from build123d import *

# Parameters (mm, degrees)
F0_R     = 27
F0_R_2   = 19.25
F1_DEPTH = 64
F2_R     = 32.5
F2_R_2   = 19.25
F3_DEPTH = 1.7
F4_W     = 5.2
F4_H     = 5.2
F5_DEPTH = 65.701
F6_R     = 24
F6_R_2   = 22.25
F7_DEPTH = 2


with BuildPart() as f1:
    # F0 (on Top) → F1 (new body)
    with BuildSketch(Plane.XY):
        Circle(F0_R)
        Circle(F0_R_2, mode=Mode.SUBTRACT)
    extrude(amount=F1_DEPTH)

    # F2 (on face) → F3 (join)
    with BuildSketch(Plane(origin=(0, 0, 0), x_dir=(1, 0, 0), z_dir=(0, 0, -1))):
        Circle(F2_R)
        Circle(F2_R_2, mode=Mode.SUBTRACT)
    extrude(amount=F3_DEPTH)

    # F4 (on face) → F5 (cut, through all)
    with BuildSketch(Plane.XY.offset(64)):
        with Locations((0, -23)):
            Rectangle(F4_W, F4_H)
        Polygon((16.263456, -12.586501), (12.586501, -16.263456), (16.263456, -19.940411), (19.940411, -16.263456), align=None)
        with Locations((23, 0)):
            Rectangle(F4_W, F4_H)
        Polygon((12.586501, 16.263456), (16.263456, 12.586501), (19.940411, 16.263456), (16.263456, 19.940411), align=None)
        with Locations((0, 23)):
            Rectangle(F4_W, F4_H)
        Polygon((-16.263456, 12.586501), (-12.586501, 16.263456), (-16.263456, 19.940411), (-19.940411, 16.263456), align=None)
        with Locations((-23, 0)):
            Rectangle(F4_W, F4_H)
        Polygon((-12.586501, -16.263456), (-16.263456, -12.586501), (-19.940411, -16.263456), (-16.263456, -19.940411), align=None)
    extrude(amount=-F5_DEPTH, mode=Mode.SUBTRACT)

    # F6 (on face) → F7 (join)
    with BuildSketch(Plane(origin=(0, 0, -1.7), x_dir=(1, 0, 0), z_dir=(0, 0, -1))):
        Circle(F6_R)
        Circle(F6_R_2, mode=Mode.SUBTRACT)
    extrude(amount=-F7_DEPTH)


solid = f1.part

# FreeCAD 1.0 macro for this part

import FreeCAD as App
import Part
import Sketcher
from FreeCAD import Vector
Q = App.Units.Quantity


def add_polygon(sketch, points):
    """Adds a closed chain of lines whose ends are joined by coincident constraints."""
    first, n = sketch.GeometryCount, len(points)
    for a, b in zip(points, points[1:] + points[:1]):
        sketch.addGeometry(Part.LineSegment(App.Vector(*a, 0), App.Vector(*b, 0)), False)
    for i in range(n):
        sketch.addConstraint(Sketcher.Constraint("Coincident", first + i, 2, first + (i + 1) % n, 1))

doc = App.newDocument("Part")
params = doc.addObject("Spreadsheet::Sheet", "Params")
for row, (alias, value) in enumerate([
    ("sketch1_diameter", "54 mm"),
    ("sketch1_diameter2", "38.5 mm"),
    ("pad1_length", "64 mm"),
    ("sketch2_diameter", "65 mm"),
    ("sketch2_diameter2", "38.5 mm"),
    ("pad2_length", "1.7 mm"),
    ("sketch3_width", "5.2 mm"),
    ("sketch3_length", "5.2 mm"),
    ("sketch4_diameter", "48 mm"),
    ("sketch4_diameter2", "44.5 mm"),
    ("pad3_length", "2 mm"),
], start=1):
    params.set(f"A{row}", alias)
    params.set(f"B{row}", "=" + value)
    params.setAlias(f"B{row}", alias)

body = doc.addObject("PartDesign::Body", "Body")

# Sketch on XY plane
sketch1 = doc.addObject("Sketcher::SketchObject", "Sketch")
body.addObject(sketch1)
sketch1.AttachmentSupport = (doc.XY_Plane, [""])
sketch1.MapMode = "FlatFace"
sketch1.addGeometry([
    Part.Circle(Vector(0, 0, 0), Vector(0, 0, 1), 27),
    Part.Circle(Vector(0, 0, 0), Vector(0, 0, 1), 19.25),
], False)
sketch1.addConstraint([
    Sketcher.Constraint("Coincident", 0, 3, -1, 1),
    Sketcher.Constraint("Coincident", 1, 3, -1, 1),
    Sketcher.Constraint("Diameter", 0, Q("54 mm")),
    Sketcher.Constraint("Diameter", 1, Q("38.5 mm")),
])
sketch1.setExpression("Constraints[2]", "Params.sketch1_diameter")
sketch1.setExpression("Constraints[3]", "Params.sketch1_diameter2")
pad1 = doc.addObject("PartDesign::Pad", "Pad")
body.addObject(pad1)
pad1.Profile = sketch1
pad1.setExpression("Length", "Params.pad1_length")

# Sketch on XY plane
sketch2 = doc.addObject("Sketcher::SketchObject", "Sketch001")
body.addObject(sketch2)
sketch2.AttachmentSupport = (doc.XY_Plane, [""])
sketch2.MapMode = "FlatFace"
sketch2.addGeometry([
    Part.Circle(Vector(0, 0, 0), Vector(0, 0, 1), 32.5),
    Part.Circle(Vector(0, 0, 0), Vector(0, 0, 1), 19.25),
], False)
sketch2.addConstraint([
    Sketcher.Constraint("Coincident", 0, 3, -1, 1),
    Sketcher.Constraint("Coincident", 1, 3, -1, 1),
    Sketcher.Constraint("Diameter", 0, Q("65 mm")),
    Sketcher.Constraint("Diameter", 1, Q("38.5 mm")),
])
sketch2.setExpression("Constraints[2]", "Params.sketch2_diameter")
sketch2.setExpression("Constraints[3]", "Params.sketch2_diameter2")
pad2 = doc.addObject("PartDesign::Pad", "Pad001")
body.addObject(pad2)
pad2.Profile = sketch2
pad2.setExpression("Length", "Params.pad2_length")
pad2.Reversed = True

# Sketch on XY plane
sketch3 = doc.addObject("Sketcher::SketchObject", "Sketch002")
body.addObject(sketch3)
sketch3.AttachmentSupport = (doc.XY_Plane, [""])
sketch3.MapMode = "FlatFace"
sketch3.AttachmentOffset = App.Placement(Vector(0, 0, 64), App.Rotation())
add_polygon(sketch3, [(-2.6, -20.4), (-2.6, -25.6), (2.6, -25.6), (2.6, -20.4)])  # lines 0-3
add_polygon(sketch3, [(16.263456, -12.586501), (12.586501, -16.263456), (16.263456, -19.940411), (19.940411, -16.263456)])  # lines 4-7
add_polygon(sketch3, [(20.4, 2.6), (20.4, -2.6), (25.6, -2.6), (25.6, 2.6)])  # lines 8-11
add_polygon(sketch3, [(12.586501, 16.263456), (16.263456, 12.586501), (19.940411, 16.263456), (16.263456, 19.940411)])  # lines 12-15
add_polygon(sketch3, [(-2.6, 25.6), (-2.6, 20.4), (2.6, 20.4), (2.6, 25.6)])  # lines 16-19
add_polygon(sketch3, [(-16.263456, 12.586501), (-12.586501, 16.263456), (-16.263456, 19.940411), (-19.940411, 16.263456)])  # lines 20-23
add_polygon(sketch3, [(-25.6, 2.6), (-25.6, -2.6), (-20.4, -2.6), (-20.4, 2.6)])  # lines 24-27
add_polygon(sketch3, [(-12.586501, -16.263456), (-16.263456, -12.586501), (-19.940411, -16.263456), (-16.263456, -19.940411)])  # lines 28-31
sketch3.addConstraint([
    Sketcher.Constraint("Vertical", 0),
    Sketcher.Constraint("Horizontal", 1),
    Sketcher.Constraint("Vertical", 2),
    Sketcher.Constraint("Horizontal", 3),
    Sketcher.Constraint("Vertical", 8),
    Sketcher.Constraint("Horizontal", 9),
    Sketcher.Constraint("Vertical", 10),
    Sketcher.Constraint("Horizontal", 11),
    Sketcher.Constraint("Vertical", 16),
    Sketcher.Constraint("Horizontal", 17),
    Sketcher.Constraint("Vertical", 18),
    Sketcher.Constraint("Horizontal", 19),
    Sketcher.Constraint("Vertical", 24),
    Sketcher.Constraint("Horizontal", 25),
    Sketcher.Constraint("Vertical", 26),
    Sketcher.Constraint("Horizontal", 27),
    Sketcher.Constraint("Symmetric", 2, 2, 16, 2, -1, 1),
    Sketcher.Constraint("Symmetric", 0, 2, 18, 2, -1, 1),
    Sketcher.Constraint("Symmetric", 4, 2, 20, 2, -1, 1),
    Sketcher.Constraint("Symmetric", 5, 2, 21, 2, -1, 1),
    Sketcher.Constraint("Symmetric", 6, 2, 22, 2, -1, 1),
    Sketcher.Constraint("Symmetric", 7, 2, 23, 2, -1, 1),
    Sketcher.Constraint("Symmetric", 10, 2, 24, 2, -1, 1),
    Sketcher.Constraint("Symmetric", 8, 2, 26, 2, -1, 1),
    Sketcher.Constraint("Symmetric", 12, 2, 28, 2, -1, 1),
    Sketcher.Constraint("Symmetric", 13, 2, 29, 2, -1, 1),
    Sketcher.Constraint("Symmetric", 14, 2, 30, 2, -1, 1),
    Sketcher.Constraint("Symmetric", 15, 2, 31, 2, -1, 1),
    Sketcher.Constraint("Symmetric", 15, 2, 20, 2, -2),
    Sketcher.Constraint("Symmetric", 14, 2, 21, 2, -2),
    Sketcher.Constraint("Symmetric", 13, 2, 22, 2, -2),
    Sketcher.Constraint("Symmetric", 12, 2, 23, 2, -2),
    Sketcher.Constraint("Perpendicular", 4, 5),
    Sketcher.Constraint("Perpendicular", 5, 6),
    Sketcher.Constraint("Perpendicular", 6, 7),
    Sketcher.Constraint("Parallel", 7, 12),
    Sketcher.Constraint("Horizontal", 4, 2, 6, 2),
    Sketcher.Constraint("Horizontal", 9, 2, 24, 2),
    Sketcher.Constraint("Vertical", 3, 2, 16, 2),
    Sketcher.Constraint("Equal", 3, 9),
    Sketcher.Constraint("Equal", 27, 0),
    Sketcher.Constraint("Equal", 2, 8),
    Sketcher.Constraint("DistanceX", 1, 1, 1, 2, Q("5.2 mm")),
    Sketcher.Constraint("DistanceX", 16, 2, 11, 2, Q("23 mm")),
    Sketcher.Constraint("Distance", 4, Q("5.2 mm")),
    Sketcher.Constraint("DistanceY", 0, 2, -1, 1, Q("25.6 mm")),
    Sketcher.Constraint("DistanceX", -1, 1, 4, 2, Q("12.586501 mm")),
    Sketcher.Constraint("DistanceY", 7, 2, -1, 1, Q("12.586501 mm")),
])
sketch3.setExpression("Constraints[74]", "Params.sketch3_width")
sketch3.setExpression("Constraints[76]", "Params.sketch3_length")
pocket1 = doc.addObject("PartDesign::Pocket", "Pocket")
body.addObject(pocket1)
pocket1.Profile = sketch3
pocket1.Type = "ThroughAll"

# Sketch on XY plane
sketch4 = doc.addObject("Sketcher::SketchObject", "Sketch003")
body.addObject(sketch4)
sketch4.AttachmentSupport = (doc.XY_Plane, [""])
sketch4.MapMode = "FlatFace"
sketch4.AttachmentOffset = App.Placement(Vector(0, 0, -1.7), App.Rotation())
sketch4.addGeometry([
    Part.Circle(Vector(0, 0, 0), Vector(0, 0, 1), 24),
    Part.Circle(Vector(0, 0, 0), Vector(0, 0, 1), 22.25),
], False)
sketch4.addConstraint([
    Sketcher.Constraint("Coincident", 0, 3, -1, 1),
    Sketcher.Constraint("Coincident", 1, 3, -1, 1),
    Sketcher.Constraint("Diameter", 0, Q("48 mm")),
    Sketcher.Constraint("Diameter", 1, Q("44.5 mm")),
])
sketch4.setExpression("Constraints[2]", "Params.sketch4_diameter")
sketch4.setExpression("Constraints[3]", "Params.sketch4_diameter2")
pad3 = doc.addObject("PartDesign::Pad", "Pad002")
body.addObject(pad3)
pad3.Profile = sketch4
pad3.setExpression("Length", "Params.pad3_length")

doc.recompute()
